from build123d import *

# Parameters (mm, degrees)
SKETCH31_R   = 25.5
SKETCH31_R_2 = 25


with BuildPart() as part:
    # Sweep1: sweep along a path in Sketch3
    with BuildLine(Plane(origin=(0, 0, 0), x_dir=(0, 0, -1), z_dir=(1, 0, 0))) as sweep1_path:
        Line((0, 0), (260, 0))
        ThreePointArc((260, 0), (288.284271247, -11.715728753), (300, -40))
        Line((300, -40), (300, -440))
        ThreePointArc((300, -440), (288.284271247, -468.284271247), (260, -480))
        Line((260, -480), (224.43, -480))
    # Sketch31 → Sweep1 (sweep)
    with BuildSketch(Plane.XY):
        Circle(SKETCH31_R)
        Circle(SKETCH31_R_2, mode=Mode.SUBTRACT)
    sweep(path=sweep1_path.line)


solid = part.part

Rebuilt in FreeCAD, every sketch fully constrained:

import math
import FreeCAD as App
import Part
import Sketcher

V = App.Vector
Q = App.Units.Quantity

doc = App.newDocument("Part")
body = doc.addObject("PartDesign::Body", "Body")

sketch1 = body.newObject("Sketcher::SketchObject", "Sketch")
sketch1.AttachmentSupport = (doc.getObject("XY_Plane"), [""])
sketch1.MapMode = "FlatFace"
sketch1.addGeometry(Part.Circle(V(0, 0, 0), V(0, 0, 1), 25.5), False)
sketch1.addGeometry(Part.Circle(V(0, 0, 0), V(0, 0, 1), 25), False)
sketch1.addConstraint(Sketcher.Constraint("Coincident", 0, 3, -1, 1))
sketch1.addConstraint(Sketcher.Constraint("Coincident", 1, 3, -1, 1))
sketch1.addConstraint(Sketcher.Constraint("Diameter", 0, Q("51 mm")))
sketch1.addConstraint(Sketcher.Constraint("Diameter", 1, Q("50 mm")))

sketch2 = body.newObject("Sketcher::SketchObject", "Sketch001")
sketch2.AttachmentSupport = (doc.getObject("YZ_Plane"), [""])
sketch2.MapMode = "FlatFace"
sketch2.addGeometry(Part.LineSegment(V(0, 0, 0), V(0, -260, 0)), False)
sketch2.addGeometry(Part.ArcOfCircle(Part.Circle(V(-40, -260, 0), V(0, 0, 1), 40), math.radians(-90), math.radians(0)), False)
sketch2.addGeometry(Part.LineSegment(V(-40, -300, 0), V(-440, -300, 0)), False)
sketch2.addGeometry(Part.ArcOfCircle(Part.Circle(V(-440, -260, 0), V(0, 0, 1), 40), math.radians(-180), math.radians(-90)), False)
sketch2.addGeometry(Part.LineSegment(V(-480, -260, 0), V(-480, -224.43, 0)), False)
sketch2.addConstraint(Sketcher.Constraint("Tangent", 0, 2, 1, 2))
sketch2.addConstraint(Sketcher.Constraint("Tangent", 1, 1, 2, 1))
sketch2.addConstraint(Sketcher.Constraint("Tangent", 2, 2, 3, 2))
sketch2.addConstraint(Sketcher.Constraint("Tangent", 3, 1, 4, 1))
sketch2.addConstraint(Sketcher.Constraint("Vertical", 0))
sketch2.addConstraint(Sketcher.Constraint("Horizontal", 2))
sketch2.addConstraint(Sketcher.Constraint("Vertical", 4))
sketch2.addConstraint(Sketcher.Constraint("Coincident", 0, 1, -1, 1))
sketch2.addConstraint(Sketcher.Constraint("Equal", 1, 3))
sketch2.addConstraint(Sketcher.Constraint("Radius", 1, Q("40 mm")))
sketch2.addConstraint(Sketcher.Constraint("DistanceX", 2, 2, 2, 1, Q("400 mm")))
sketch2.addConstraint(Sketcher.Constraint("DistanceY", 0, 2, 0, 1, Q("260 mm")))
sketch2.addConstraint(Sketcher.Constraint("DistanceY", 4, 1, 4, 2, Q("35.57 mm")))
doc.recompute()

additivepipe = body.newObject("PartDesign::AdditivePipe", "AdditivePipe")
additivepipe.Profile = sketch1
additivepipe.Spine = (sketch2, ["Edge1", "Edge2", "Edge3", "Edge4", "Edge5"])

doc.recompute()
